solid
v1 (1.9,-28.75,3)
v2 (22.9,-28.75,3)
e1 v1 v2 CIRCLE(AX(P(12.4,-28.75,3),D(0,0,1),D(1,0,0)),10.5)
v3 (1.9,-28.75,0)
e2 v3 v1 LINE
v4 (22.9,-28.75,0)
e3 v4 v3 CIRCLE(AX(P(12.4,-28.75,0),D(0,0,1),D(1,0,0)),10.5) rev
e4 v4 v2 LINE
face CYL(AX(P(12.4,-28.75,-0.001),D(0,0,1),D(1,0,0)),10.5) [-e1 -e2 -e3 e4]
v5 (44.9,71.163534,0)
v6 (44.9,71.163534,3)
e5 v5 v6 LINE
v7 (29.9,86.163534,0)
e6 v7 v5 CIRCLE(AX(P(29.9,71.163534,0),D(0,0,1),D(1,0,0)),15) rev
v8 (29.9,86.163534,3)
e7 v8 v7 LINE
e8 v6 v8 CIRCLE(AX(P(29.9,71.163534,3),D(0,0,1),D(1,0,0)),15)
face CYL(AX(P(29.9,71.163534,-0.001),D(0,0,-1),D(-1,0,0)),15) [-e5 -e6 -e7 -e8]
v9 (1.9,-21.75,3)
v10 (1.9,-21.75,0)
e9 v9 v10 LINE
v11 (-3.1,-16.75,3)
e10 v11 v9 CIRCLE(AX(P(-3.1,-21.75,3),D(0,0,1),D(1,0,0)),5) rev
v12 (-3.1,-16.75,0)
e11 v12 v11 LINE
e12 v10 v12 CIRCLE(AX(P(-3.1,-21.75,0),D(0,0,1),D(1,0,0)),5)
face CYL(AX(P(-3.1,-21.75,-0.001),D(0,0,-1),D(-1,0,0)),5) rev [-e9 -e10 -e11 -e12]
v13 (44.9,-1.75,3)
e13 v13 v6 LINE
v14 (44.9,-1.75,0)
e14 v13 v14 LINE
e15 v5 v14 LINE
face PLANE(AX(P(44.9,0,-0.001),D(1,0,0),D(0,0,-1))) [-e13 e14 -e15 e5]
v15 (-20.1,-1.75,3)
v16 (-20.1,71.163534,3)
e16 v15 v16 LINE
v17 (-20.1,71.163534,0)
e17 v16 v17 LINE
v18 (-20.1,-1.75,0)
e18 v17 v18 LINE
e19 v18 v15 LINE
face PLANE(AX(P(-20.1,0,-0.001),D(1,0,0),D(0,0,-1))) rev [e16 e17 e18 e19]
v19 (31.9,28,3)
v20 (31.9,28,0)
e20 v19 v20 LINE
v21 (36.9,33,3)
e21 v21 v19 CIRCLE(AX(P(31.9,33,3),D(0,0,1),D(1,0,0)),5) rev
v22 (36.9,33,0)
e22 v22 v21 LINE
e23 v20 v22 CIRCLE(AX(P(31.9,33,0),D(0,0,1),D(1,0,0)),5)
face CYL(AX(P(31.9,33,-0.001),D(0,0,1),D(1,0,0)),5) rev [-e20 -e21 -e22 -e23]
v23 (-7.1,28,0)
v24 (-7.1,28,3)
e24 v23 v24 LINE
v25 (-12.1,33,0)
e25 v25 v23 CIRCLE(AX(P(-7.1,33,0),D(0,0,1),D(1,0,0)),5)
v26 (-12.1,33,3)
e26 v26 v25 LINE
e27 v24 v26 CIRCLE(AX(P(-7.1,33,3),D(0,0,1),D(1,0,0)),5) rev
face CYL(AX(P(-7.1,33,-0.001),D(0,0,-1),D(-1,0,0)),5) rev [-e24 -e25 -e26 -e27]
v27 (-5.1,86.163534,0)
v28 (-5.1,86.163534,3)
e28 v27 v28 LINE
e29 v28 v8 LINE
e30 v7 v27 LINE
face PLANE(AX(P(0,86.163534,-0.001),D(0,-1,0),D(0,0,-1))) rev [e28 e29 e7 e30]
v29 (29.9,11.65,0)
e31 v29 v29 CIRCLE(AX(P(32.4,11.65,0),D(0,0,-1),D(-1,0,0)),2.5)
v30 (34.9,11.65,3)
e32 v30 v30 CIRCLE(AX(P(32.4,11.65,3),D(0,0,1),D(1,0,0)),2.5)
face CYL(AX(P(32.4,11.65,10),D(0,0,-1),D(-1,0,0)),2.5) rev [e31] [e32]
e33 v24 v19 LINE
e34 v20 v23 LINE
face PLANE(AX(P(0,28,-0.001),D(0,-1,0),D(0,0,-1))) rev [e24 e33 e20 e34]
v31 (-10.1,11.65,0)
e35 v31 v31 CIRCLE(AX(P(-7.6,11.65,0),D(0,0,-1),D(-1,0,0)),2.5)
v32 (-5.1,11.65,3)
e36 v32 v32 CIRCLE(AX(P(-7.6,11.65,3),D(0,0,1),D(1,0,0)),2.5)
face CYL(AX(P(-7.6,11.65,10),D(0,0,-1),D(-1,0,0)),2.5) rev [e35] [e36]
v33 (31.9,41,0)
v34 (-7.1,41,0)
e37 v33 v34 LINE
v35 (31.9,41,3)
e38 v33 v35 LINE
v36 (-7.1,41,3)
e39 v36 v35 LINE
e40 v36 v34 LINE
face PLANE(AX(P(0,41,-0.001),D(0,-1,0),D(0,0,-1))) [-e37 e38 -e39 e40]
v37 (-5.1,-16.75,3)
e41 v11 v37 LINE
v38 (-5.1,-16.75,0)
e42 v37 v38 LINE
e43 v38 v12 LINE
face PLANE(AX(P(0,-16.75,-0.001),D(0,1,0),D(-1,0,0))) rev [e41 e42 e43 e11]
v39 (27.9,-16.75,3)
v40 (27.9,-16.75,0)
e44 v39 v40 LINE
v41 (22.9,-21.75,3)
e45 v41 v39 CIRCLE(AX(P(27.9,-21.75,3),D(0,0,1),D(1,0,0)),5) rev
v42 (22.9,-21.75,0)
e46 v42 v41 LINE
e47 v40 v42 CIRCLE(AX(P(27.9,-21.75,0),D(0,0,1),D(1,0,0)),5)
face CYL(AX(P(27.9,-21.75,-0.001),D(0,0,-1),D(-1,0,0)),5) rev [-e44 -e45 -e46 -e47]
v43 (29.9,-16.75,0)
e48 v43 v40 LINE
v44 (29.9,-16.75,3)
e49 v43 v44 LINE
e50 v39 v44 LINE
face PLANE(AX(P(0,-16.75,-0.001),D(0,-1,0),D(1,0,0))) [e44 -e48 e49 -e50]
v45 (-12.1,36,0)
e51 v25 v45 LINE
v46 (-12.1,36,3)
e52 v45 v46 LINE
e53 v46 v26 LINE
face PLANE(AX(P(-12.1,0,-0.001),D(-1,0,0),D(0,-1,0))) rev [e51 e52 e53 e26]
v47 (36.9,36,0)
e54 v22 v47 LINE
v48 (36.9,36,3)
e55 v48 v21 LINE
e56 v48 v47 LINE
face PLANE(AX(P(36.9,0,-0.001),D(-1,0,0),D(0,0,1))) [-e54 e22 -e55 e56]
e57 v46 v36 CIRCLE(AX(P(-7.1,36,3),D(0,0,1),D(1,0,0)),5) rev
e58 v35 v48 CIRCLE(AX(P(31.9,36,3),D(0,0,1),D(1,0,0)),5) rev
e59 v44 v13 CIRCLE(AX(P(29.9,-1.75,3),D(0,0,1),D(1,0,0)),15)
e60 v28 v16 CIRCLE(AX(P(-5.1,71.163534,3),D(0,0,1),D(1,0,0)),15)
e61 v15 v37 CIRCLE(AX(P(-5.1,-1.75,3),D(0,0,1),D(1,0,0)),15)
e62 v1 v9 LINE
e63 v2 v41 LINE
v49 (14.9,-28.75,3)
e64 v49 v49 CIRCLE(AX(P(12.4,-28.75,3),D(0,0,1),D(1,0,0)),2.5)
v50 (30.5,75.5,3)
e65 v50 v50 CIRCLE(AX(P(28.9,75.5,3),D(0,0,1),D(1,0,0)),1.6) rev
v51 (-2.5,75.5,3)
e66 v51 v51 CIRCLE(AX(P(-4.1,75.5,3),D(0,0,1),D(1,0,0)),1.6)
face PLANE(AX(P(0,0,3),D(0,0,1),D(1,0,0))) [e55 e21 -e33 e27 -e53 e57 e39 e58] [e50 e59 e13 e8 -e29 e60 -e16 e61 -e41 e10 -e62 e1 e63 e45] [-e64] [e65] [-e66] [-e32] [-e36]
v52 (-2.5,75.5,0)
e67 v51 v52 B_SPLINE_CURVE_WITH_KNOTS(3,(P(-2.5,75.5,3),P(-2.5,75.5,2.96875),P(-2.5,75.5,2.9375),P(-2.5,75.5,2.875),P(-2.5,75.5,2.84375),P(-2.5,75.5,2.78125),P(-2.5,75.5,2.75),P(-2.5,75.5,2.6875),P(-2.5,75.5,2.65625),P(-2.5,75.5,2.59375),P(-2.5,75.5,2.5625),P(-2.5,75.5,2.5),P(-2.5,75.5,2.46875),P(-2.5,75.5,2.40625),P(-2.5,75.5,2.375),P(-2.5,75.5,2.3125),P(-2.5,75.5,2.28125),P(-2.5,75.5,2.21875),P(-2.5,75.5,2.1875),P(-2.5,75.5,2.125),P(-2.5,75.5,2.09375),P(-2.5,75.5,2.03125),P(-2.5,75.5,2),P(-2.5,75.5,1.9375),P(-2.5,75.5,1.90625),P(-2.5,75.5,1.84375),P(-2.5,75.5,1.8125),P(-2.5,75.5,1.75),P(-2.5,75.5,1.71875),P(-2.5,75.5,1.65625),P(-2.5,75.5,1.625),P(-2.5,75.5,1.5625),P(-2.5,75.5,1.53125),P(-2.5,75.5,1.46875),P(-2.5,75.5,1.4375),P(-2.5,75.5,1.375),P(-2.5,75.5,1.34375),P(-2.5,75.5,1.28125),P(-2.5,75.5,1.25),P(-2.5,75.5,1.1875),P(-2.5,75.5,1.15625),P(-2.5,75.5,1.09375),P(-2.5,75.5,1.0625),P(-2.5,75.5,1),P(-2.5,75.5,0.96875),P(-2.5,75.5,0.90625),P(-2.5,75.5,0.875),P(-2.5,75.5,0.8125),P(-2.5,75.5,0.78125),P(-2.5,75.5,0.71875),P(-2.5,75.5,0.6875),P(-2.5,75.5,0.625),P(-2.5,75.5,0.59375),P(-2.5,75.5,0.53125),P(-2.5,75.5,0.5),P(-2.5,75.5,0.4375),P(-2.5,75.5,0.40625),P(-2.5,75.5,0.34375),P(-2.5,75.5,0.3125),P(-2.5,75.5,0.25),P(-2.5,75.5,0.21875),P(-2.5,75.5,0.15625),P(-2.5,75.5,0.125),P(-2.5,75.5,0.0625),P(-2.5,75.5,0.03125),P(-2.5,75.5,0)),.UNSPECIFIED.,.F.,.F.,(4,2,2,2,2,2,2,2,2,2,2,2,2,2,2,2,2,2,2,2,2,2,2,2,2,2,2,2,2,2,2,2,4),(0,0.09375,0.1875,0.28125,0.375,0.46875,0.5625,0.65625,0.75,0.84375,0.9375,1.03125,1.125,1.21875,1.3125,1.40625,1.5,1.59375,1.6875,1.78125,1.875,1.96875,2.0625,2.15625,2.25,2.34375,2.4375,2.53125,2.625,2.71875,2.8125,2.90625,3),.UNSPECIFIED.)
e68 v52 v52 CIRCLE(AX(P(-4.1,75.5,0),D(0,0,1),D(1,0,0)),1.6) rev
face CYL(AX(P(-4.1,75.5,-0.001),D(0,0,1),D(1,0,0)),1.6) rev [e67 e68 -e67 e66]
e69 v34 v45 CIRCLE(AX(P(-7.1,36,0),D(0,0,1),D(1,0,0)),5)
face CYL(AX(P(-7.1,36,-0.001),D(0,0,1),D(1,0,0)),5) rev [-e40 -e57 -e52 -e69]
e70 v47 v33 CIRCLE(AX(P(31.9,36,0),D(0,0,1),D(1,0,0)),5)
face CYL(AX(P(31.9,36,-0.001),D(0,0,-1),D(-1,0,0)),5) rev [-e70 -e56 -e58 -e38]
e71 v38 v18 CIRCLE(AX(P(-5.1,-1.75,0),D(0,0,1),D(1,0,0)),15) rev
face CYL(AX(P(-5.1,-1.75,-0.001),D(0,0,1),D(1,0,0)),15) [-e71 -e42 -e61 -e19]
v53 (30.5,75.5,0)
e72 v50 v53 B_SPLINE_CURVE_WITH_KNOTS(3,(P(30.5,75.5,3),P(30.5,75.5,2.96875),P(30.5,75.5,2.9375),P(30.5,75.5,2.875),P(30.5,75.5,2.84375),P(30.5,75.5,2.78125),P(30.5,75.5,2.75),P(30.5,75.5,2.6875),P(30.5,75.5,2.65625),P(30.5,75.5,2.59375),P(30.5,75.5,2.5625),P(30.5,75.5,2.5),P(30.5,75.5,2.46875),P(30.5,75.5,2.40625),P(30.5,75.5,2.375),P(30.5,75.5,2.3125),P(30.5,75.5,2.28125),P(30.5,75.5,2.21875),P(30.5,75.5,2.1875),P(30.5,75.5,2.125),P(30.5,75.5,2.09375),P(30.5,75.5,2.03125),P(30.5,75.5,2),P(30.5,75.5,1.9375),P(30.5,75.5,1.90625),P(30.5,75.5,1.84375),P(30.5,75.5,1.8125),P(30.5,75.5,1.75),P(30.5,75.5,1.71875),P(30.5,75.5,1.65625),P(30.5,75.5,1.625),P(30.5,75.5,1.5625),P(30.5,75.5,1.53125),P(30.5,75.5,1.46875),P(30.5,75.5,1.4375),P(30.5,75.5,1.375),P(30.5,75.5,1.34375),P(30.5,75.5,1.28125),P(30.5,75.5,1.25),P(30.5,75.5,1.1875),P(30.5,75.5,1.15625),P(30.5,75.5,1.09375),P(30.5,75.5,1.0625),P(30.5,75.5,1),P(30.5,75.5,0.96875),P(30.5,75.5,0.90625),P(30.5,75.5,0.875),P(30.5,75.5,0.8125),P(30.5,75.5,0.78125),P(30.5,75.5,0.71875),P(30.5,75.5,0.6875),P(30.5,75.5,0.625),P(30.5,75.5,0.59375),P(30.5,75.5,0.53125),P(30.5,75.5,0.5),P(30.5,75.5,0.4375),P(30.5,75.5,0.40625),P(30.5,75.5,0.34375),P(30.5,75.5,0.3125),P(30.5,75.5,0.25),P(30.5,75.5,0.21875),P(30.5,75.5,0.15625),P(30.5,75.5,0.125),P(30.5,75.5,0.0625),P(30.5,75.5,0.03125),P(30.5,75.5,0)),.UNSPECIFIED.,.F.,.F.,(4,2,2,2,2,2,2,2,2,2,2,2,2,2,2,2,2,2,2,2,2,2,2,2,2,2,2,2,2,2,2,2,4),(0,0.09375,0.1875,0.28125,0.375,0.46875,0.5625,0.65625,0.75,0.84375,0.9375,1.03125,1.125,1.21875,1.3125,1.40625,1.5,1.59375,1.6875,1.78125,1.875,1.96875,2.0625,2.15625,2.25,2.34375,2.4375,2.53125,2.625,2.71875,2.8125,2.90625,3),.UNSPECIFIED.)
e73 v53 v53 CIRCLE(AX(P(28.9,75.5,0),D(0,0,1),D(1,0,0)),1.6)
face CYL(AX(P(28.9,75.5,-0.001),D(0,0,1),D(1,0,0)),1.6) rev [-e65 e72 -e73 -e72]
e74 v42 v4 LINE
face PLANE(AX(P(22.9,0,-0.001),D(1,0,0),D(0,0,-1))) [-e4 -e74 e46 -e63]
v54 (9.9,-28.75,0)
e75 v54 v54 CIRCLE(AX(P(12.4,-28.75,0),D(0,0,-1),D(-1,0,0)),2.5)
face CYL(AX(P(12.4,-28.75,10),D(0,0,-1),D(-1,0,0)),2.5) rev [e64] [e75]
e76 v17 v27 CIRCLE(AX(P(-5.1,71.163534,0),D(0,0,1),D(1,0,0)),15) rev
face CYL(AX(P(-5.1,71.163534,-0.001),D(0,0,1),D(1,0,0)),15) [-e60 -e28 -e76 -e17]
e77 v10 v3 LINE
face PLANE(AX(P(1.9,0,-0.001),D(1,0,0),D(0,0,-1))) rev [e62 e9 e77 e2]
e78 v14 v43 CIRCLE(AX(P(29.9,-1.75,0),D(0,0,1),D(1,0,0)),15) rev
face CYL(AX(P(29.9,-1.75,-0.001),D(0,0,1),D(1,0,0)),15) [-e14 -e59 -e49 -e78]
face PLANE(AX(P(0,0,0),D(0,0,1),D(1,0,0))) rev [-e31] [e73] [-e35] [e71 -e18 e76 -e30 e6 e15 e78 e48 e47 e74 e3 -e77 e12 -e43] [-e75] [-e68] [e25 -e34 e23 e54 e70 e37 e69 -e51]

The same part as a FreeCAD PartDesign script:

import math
import FreeCAD as App
import Part
import Sketcher


def edges_at(feature, points):
    """Names of the edges that pass closest to the given points."""
    edges = feature.Shape.Edges
    near = lambda p: min(range(len(edges)), key=lambda i: edges[i].distToShape(Part.Vertex(*p))[0])
    return sorted({f"Edge{near(p) + 1}" for p in points})


def add_polygon(sketch, points):
    """Adds a closed chain of lines whose ends are joined by coincident constraints."""
    first, n = sketch.GeometryCount, len(points)
    for a, b in zip(points, points[1:] + points[:1]):
        sketch.addGeometry(Part.LineSegment(App.Vector(*a, 0), App.Vector(*b, 0)), False)
    for i in range(n):
        sketch.addConstraint(Sketcher.Constraint("Coincident", first + i, 2, first + (i + 1) % n, 1))

doc = App.newDocument("Part")
params = doc.addObject("Spreadsheet::Sheet", "Params")
for row, (alias, value) in enumerate([
    ("sketch1_width", "200 mm"),
    ("pad1_length", "3 mm"),
    ("sketch2_diameter", "5 mm"),
    ("pocket1_length", "10 mm"),
    ("sketch3_radius", "10.5 mm"),
    ("sketch3_width", "200 mm"),
    ("sketch3_width2", "22 mm"),
    ("sketch3_height", "12 mm"),
    ("sketch4_width", "49 mm"),
    ("sketch4_height", "13 mm"),
    ("fillet_radius", "15 mm"),
    ("fillet2_radius", "5 mm"),
    ("sketch5_diameter", "3.2 mm"),
    ("sketch6_diameter", "3.2 mm"),
], start=1):
    params.set(f"A{row}", alias)
    params.set(f"B{row}", "=" + value)
    params.setAlias(f"B{row}", alias)

body = doc.addObject("PartDesign::Body", "Body")

# Sketch on XY plane
sketch1 = body.newObject("Sketcher::SketchObject", "Sketch")
sketch1.AttachmentSupport = (doc.getObject("XY_Plane"), [""])
sketch1.MapMode = "FlatFace"
add_polygon(sketch1, [(-100, 100), (-100, -100), (100, -100), (100, 100)])  # lines 0-3
sketch1.addConstraint([
    Sketcher.Constraint("Vertical", 0),
    Sketcher.Constraint("Horizontal", 1),
    Sketcher.Constraint("Vertical", 2),
    Sketcher.Constraint("Horizontal", 3),
    Sketcher.Constraint("Symmetric", 0, 2, 2, 2, -1, 1),
    Sketcher.Constraint("Equal", 3, 0),
    Sketcher.Constraint("DistanceX", 1, 1, 1, 2, 200.0),
])
sketch1.setExpression("Constraints[10]", "Params.sketch1_width")
pad1 = body.newObject("PartDesign::Pad", "Pad")
pad1.Profile = sketch1
pad1.setExpression("Length", "Params.pad1_length")

# Sketch on XY plane
sketch2 = body.newObject("Sketcher::SketchObject", "Sketch001")
sketch2.AttachmentSupport = (doc.getObject("XY_Plane"), [""])
sketch2.MapMode = "FlatFace"
sketch2.addGeometry([
    Part.Circle(App.Vector(32.4, 11.7, 0), App.Vector(0, 0, 1), 2.5),
    Part.Circle(App.Vector(-7.6, 11.7, 0), App.Vector(0, 0, 1), 2.5),
    Part.Circle(App.Vector(12.4, -28.8, 0), App.Vector(0, 0, 1), 2.5),
], False)
sketch2.addConstraint([
    Sketcher.Constraint("Equal", 0, 1),
    Sketcher.Constraint("Equal", 1, 2),
    Sketcher.Constraint("Horizontal", 0, 3, 1, 3),
    Sketcher.Constraint("Diameter", 0, 5.0),
    Sketcher.Constraint("DistanceX", 1, 3, 0, 3, 40.0),
    Sketcher.Constraint("DistanceX", 2, 3, 0, 3, 20.0),
    Sketcher.Constraint("DistanceX", -1, 1, 0, 3, 32.4),
    Sketcher.Constraint("DistanceY", 2, 3, 0, 3, 40.4),
    Sketcher.Constraint("DistanceY", -1, 1, 0, 3, 11.65),
])
sketch2.setExpression("Constraints[3]", "Params.sketch2_diameter")
pocket1 = body.newObject("PartDesign::Pocket", "Pocket")
pocket1.Profile = sketch2
pocket1.setExpression("Length", "Params.pocket1_length")
pocket1.Reversed = True

# Sketch on XY plane
sketch3 = body.newObject("Sketcher::SketchObject", "Sketch002")
sketch3.AttachmentSupport = (doc.getObject("XY_Plane"), [""])
sketch3.MapMode = "FlatFace"
sketch3.AttachmentOffset = App.Placement(App.Vector(0, 0, 3), App.Rotation())
add_polygon(sketch3, [(-100, 100), (-100, -100), (100, -100), (100, 100)])  # lines 0-3
sketch3.addGeometry(Part.LineSegment(App.Vector(2, -17, 0), App.Vector(-20, -17, 0)), False)  # 4
sketch3.addGeometry(Part.LineSegment(App.Vector(-20, -17, 0), App.Vector(-20, 86, 0)), False)  # 5
sketch3.addGeometry(Part.LineSegment(App.Vector(-20, 86, 0), App.Vector(45, 86, 0)), False)  # 6
sketch3.addGeometry(Part.LineSegment(App.Vector(45, 86, 0), App.Vector(45, -17, 0)), False)  # 7
sketch3.addGeometry(Part.LineSegment(App.Vector(45, -17, 0), App.Vector(23, -17, 0)), False)  # 8
sketch3.addGeometry(Part.LineSegment(App.Vector(23, -17, 0), App.Vector(23, -29, 0)), False)  # 9
sketch3.addGeometry(Part.ArcOfCircle(Part.Circle(App.Vector(12, -29, 0), App.Vector(0, 0, 1), 10), math.radians(180), math.radians(360)), False)  # 10
sketch3.addGeometry(Part.LineSegment(App.Vector(2, -29, 0), App.Vector(2, -17, 0)), False)  # 11
sketch3.addConstraint([
    Sketcher.Constraint("Coincident", 4, 2, 5, 1),
    Sketcher.Constraint("Coincident", 5, 2, 6, 1),
    Sketcher.Constraint("Coincident", 6, 2, 7, 1),
    Sketcher.Constraint("Coincident", 7, 2, 8, 1),
    Sketcher.Constraint("Coincident", 8, 2, 9, 1),
    Sketcher.Constraint("Tangent", 9, 2, 10, 2),
    Sketcher.Constraint("Tangent", 10, 1, 11, 1),
    Sketcher.Constraint("Coincident", 11, 2, 4, 1),
    Sketcher.Constraint("Vertical", 0),
    Sketcher.Constraint("Horizontal", 1),
    Sketcher.Constraint("Vertical", 2),
    Sketcher.Constraint("Horizontal", 3),
    Sketcher.Constraint("Horizontal", 4),
    Sketcher.Constraint("Vertical", 5),
    Sketcher.Constraint("Horizontal", 6),
    Sketcher.Constraint("Vertical", 7),
    Sketcher.Constraint("Horizontal", 8),
    Sketcher.Constraint("Vertical", 9),
    Sketcher.Constraint("Vertical", 11),
    Sketcher.Constraint("Symmetric", 0, 2, 2, 2, -1, 1),
    Sketcher.Constraint("Horizontal", 4, 2, 7, 2),
    Sketcher.Constraint("Equal", 4, 8),
    Sketcher.Constraint("Equal", 3, 0),
    Sketcher.Constraint("Radius", 10, 10.5),
    Sketcher.Constraint("DistanceX", 1, 1, 1, 2, 200.0),
    Sketcher.Constraint("DistanceX", 4, 2, 4, 1, 22.0),
    Sketcher.Constraint("DistanceY", 9, 2, 9, 1, 12.0),
    Sketcher.Constraint("DistanceX", -1, 1, 10, 3, 12.4),
    Sketcher.Constraint("DistanceY", 10, 3, -1, 1, 28.75),
    Sketcher.Constraint("DistanceY", 5, 1, 5, 2, 102.913534),
])
sketch3.setExpression("Constraints[27]", "Params.sketch3_radius")
sketch3.setExpression("Constraints[28]", "Params.sketch3_width")
sketch3.setExpression("Constraints[29]", "Params.sketch3_width2")
sketch3.setExpression("Constraints[30]", "Params.sketch3_height")
pocket2 = body.newObject("PartDesign::Pocket", "Pocket001")
pocket2.Profile = sketch3
pocket2.Type = "UpToFirst"

# Sketch on XY plane
sketch4 = body.newObject("Sketcher::SketchObject", "Sketch003")
sketch4.AttachmentSupport = (doc.getObject("XY_Plane"), [""])
sketch4.MapMode = "FlatFace"
sketch4.AttachmentOffset = App.Placement(App.Vector(0, 0, 3), App.Rotation())
add_polygon(sketch4, [(-12, 41), (-12, 28), (37, 28), (37, 41)])  # lines 0-3
sketch4.addConstraint([
    Sketcher.Constraint("Vertical", 0),
    Sketcher.Constraint("Horizontal", 1),
    Sketcher.Constraint("Vertical", 2),
    Sketcher.Constraint("Horizontal", 3),
    Sketcher.Constraint("DistanceX", 1, 1, 1, 2, 49.0),
    Sketcher.Constraint("DistanceY", 0, 2, 0, 1, 13.0),
    Sketcher.Constraint("DistanceY", -1, 1, 0, 2, 28.0),
    Sketcher.Constraint("DistanceX", 0, 2, -1, 1, 12.1),
])
sketch4.setExpression("Constraints[8]", "Params.sketch4_width")
sketch4.setExpression("Constraints[9]", "Params.sketch4_height")
pocket3 = body.newObject("PartDesign::Pocket", "Pocket002")
pocket3.Profile = sketch4
pocket3.Type = "UpToFirst"
doc.recompute()

fillet = body.newObject("PartDesign::Fillet", "Fillet")
fillet.Base = (pocket3, edges_at(pocket3, [
    (44.9, -16.75, 1.5),
    (44.9, 86.164, 1.5),
    (-20.1, 86.164, 1.5),
    (-20.1, -16.75, 1.5),
]))
fillet.setExpression("Radius", "Params.fillet_radius")
doc.recompute()

fillet2 = body.newObject("PartDesign::Fillet", "Fillet001")
fillet2.Base = (fillet, edges_at(fillet, [
    (36.9, 41, 1.5),
    (36.9, 28, 1.5),
    (-12.1, 28, 1.5),
    (-12.1, 41, 1.5),
    (22.9, -16.75, 1.5),
    (1.9, -16.75, 1.5),
]))
fillet2.setExpression("Radius", "Params.fillet2_radius")

# Sketch on XY plane
sketch5 = body.newObject("Sketcher::SketchObject", "Sketch004")
sketch5.AttachmentSupport = (doc.getObject("XY_Plane"), [""])
sketch5.MapMode = "FlatFace"
sketch5.AttachmentOffset = App.Placement(App.Vector(0, 0, 3), App.Rotation())
sketch5.addGeometry(Part.Circle(App.Vector(-4.1, 75.5, 0), App.Vector(0, 0, 1), 1.6), False)
sketch5.addConstraint([
    Sketcher.Constraint("Diameter", 0, 3.2),
    Sketcher.Constraint("DistanceX", 0, 3, -1, 1, 4.1),
    Sketcher.Constraint("DistanceY", -1, 1, 0, 3, 75.5),
])
sketch5.setExpression("Constraints[0]", "Params.sketch5_diameter")
pocket4 = body.newObject("PartDesign::Pocket", "Pocket003")
pocket4.Profile = sketch5
pocket4.Type = "UpToFirst"

# Sketch on XY plane
sketch6 = body.newObject("Sketcher::SketchObject", "Sketch005")
sketch6.AttachmentSupport = (doc.getObject("XY_Plane"), [""])
sketch6.MapMode = "FlatFace"
sketch6.AttachmentOffset = App.Placement(App.Vector(0, 0, 3), App.Rotation())
sketch6.addGeometry(Part.Circle(App.Vector(28.9, 75.5, 0), App.Vector(0, 0, 1), 1.6), False)
sketch6.addConstraint([
    Sketcher.Constraint("Diameter", 0, 3.2),
    Sketcher.Constraint("DistanceX", -1, 1, 0, 3, 28.9),
    Sketcher.Constraint("DistanceY", -1, 1, 0, 3, 75.5),
])
sketch6.setExpression("Constraints[0]", "Params.sketch6_diameter")
pocket5 = body.newObject("PartDesign::Pocket", "Pocket004")
pocket5.Profile = sketch6
pocket5.Type = "UpToFirst"

doc.recompute()
